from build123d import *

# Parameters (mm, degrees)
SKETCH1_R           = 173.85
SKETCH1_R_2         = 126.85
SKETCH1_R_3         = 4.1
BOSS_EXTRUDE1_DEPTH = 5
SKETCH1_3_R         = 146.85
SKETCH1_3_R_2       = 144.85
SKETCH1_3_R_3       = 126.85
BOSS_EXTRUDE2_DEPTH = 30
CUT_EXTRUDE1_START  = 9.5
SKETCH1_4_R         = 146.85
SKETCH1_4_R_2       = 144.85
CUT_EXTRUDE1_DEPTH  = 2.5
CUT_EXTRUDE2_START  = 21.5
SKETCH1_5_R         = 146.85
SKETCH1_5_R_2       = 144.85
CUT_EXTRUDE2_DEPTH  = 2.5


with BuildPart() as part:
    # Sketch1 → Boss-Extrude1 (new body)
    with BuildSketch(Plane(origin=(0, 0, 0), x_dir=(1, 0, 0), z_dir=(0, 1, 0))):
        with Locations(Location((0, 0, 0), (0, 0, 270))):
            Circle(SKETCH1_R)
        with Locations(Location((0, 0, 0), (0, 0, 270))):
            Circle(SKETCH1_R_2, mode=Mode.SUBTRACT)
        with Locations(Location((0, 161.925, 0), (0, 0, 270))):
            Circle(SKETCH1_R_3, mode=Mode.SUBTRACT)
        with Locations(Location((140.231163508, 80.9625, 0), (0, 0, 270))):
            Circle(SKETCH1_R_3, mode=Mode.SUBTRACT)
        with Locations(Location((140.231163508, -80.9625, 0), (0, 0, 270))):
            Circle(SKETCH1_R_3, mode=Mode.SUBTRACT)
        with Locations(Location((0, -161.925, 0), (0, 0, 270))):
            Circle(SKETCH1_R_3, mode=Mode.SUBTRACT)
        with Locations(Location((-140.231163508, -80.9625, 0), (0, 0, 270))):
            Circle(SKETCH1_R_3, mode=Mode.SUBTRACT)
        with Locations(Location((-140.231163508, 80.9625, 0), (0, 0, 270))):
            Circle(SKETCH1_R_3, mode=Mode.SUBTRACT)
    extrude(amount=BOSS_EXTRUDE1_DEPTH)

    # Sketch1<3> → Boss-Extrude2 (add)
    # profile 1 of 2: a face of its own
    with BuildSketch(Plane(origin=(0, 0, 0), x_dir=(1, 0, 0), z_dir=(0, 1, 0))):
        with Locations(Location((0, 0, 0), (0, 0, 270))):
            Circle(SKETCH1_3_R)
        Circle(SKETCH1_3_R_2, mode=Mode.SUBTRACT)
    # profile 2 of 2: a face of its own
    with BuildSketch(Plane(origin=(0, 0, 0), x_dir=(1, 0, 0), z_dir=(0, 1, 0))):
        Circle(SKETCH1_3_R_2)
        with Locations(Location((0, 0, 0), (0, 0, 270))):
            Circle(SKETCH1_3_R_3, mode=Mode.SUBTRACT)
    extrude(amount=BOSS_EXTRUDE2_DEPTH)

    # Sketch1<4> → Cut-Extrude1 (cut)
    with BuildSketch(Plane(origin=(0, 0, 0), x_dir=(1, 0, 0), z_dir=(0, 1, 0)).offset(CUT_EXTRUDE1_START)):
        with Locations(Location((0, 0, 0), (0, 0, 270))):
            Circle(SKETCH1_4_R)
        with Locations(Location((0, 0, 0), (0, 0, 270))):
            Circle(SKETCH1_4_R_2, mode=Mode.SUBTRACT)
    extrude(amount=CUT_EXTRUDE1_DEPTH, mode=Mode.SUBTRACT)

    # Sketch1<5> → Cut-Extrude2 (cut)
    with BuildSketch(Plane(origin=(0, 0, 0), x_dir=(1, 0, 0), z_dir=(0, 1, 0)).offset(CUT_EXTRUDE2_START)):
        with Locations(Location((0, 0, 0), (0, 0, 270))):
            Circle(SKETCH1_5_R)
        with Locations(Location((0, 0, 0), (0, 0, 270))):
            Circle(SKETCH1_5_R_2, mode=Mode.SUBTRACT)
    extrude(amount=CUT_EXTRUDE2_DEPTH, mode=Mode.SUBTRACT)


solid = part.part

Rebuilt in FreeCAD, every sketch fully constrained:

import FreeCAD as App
import Part
import Sketcher

doc = App.newDocument("Part")
body = doc.addObject("PartDesign::Body", "Body")

# Sketch on XZ plane
sketch1 = doc.addObject("Sketcher::SketchObject", "Sketch")
body.addObject(sketch1)
sketch1.AttachmentSupport = (doc.XZ_Plane, [""])
sketch1.MapMode = "FlatFace"
sketch1.addGeometry([
    Part.Circle(App.Vector(0, 0, 0), App.Vector(0, 0, 1), 173.85),  # 0
    Part.Circle(App.Vector(-140.231164, -80.9625, 0), App.Vector(0, 0, 1), 4.1),  # 1
    Part.Circle(App.Vector(0, -161.925, 0), App.Vector(0, 0, 1), 4.1),  # 2
    Part.Circle(App.Vector(-140.231164, 80.9625, 0), App.Vector(0, 0, 1), 4.1),  # 3
    Part.Circle(App.Vector(140.231164, -80.9625, 0), App.Vector(0, 0, 1), 4.1),  # 4
    Part.Circle(App.Vector(0, 0, 0), App.Vector(0, 0, 1), 126.85),  # 5
    Part.Circle(App.Vector(0, 161.925, 0), App.Vector(0, 0, 1), 4.1),  # 6
    Part.Circle(App.Vector(140.231164, 80.9625, 0), App.Vector(0, 0, 1), 4.1),  # 7
], False)
sketch1.addConstraint([
    Sketcher.Constraint("Coincident", 0, 3, -1, 1),
    Sketcher.Constraint("Coincident", 5, 3, -1, 1),
    Sketcher.Constraint("Equal", 1, 2),
    Sketcher.Constraint("Equal", 2, 3),
    Sketcher.Constraint("Equal", 3, 4),
    Sketcher.Constraint("Equal", 4, 6),
    Sketcher.Constraint("Equal", 6, 7),
    Sketcher.Constraint("Symmetric", 3, 3, 4, 3, -1, 1),
    Sketcher.Constraint("Symmetric", 2, 3, 6, 3, -1, 1),
    Sketcher.Constraint("Symmetric", 1, 3, 7, 3, -1, 1),
    Sketcher.Constraint("Symmetric", 1, 3, 4, 3, -2),
    Sketcher.Constraint("PointOnObject", 2, 3, -2),
    Sketcher.Constraint("Diameter", 0, 347.7),
    Sketcher.Constraint("Diameter", 1, 8.2),
    Sketcher.Constraint("Diameter", 5, 253.7),
    Sketcher.Constraint("DistanceY", 2, 3, -1, 1, 161.925),
    Sketcher.Constraint("DistanceY", 1, 3, 3, 3, 161.925),
    Sketcher.Constraint("DistanceX", 1, 3, -1, 1, 140.231164),
])
pad1 = doc.addObject("PartDesign::Pad", "Pad")
body.addObject(pad1)
pad1.Profile = sketch1
pad1.Length = 5
pad1.Reversed = True

# Sketch on XZ plane
sketch2 = doc.addObject("Sketcher::SketchObject", "Sketch001")
body.addObject(sketch2)
sketch2.AttachmentSupport = (doc.XZ_Plane, [""])
sketch2.MapMode = "FlatFace"
sketch2.addGeometry([
    Part.Circle(App.Vector(0, 0, 0), App.Vector(0, 0, 1), 146.85),
    Part.Circle(App.Vector(0, 0, 0), App.Vector(0, 0, 1), 126.85),
], False)
sketch2.addConstraint([
    Sketcher.Constraint("Coincident", 0, 3, -1, 1),
    Sketcher.Constraint("Coincident", 1, 3, -1, 1),
    Sketcher.Constraint("Diameter", 0, 293.7),
    Sketcher.Constraint("Diameter", 1, 253.7),
])
pad2 = doc.addObject("PartDesign::Pad", "Pad001")
body.addObject(pad2)
pad2.Profile = sketch2
pad2.Length = 30
pad2.Reversed = True

# Sketch on XZ plane
sketch3 = doc.addObject("Sketcher::SketchObject", "Sketch002")
body.addObject(sketch3)
sketch3.AttachmentSupport = (doc.XZ_Plane, [""])
sketch3.MapMode = "FlatFace"
sketch3.AttachmentOffset = App.Placement(App.Vector(0, 0, -9.5), App.Rotation())
sketch3.addGeometry([
    Part.Circle(App.Vector(0, 0, 0), App.Vector(0, 0, 1), 146.85),
    Part.Circle(App.Vector(0, 0, 0), App.Vector(0, 0, 1), 144.85),
], False)
sketch3.addConstraint([
    Sketcher.Constraint("Coincident", 0, 3, -1, 1),
    Sketcher.Constraint("Coincident", 1, 3, -1, 1),
    Sketcher.Constraint("Diameter", 0, 293.7),
    Sketcher.Constraint("Diameter", 1, 289.7),
])
pocket1 = doc.addObject("PartDesign::Pocket", "Pocket")
body.addObject(pocket1)
pocket1.Profile = sketch3
pocket1.Length = 2.5

# Sketch on XZ plane
sketch4 = doc.addObject("Sketcher::SketchObject", "Sketch003")
body.addObject(sketch4)
sketch4.AttachmentSupport = (doc.XZ_Plane, [""])
sketch4.MapMode = "FlatFace"
sketch4.AttachmentOffset = App.Placement(App.Vector(0, 0, -21.5), App.Rotation())
sketch4.addGeometry([
    Part.Circle(App.Vector(0, 0, 0), App.Vector(0, 0, 1), 146.85),
    Part.Circle(App.Vector(0, 0, 0), App.Vector(0, 0, 1), 144.85),
], False)
sketch4.addConstraint([
    Sketcher.Constraint("Coincident", 0, 3, -1, 1),
    Sketcher.Constraint("Coincident", 1, 3, -1, 1),
    Sketcher.Constraint("Diameter", 0, 293.7),
    Sketcher.Constraint("Diameter", 1, 289.7),
])
pocket2 = doc.addObject("PartDesign::Pocket", "Pocket001")
body.addObject(pocket2)
pocket2.Profile = sketch4
pocket2.Length = 2.5

doc.recompute()
